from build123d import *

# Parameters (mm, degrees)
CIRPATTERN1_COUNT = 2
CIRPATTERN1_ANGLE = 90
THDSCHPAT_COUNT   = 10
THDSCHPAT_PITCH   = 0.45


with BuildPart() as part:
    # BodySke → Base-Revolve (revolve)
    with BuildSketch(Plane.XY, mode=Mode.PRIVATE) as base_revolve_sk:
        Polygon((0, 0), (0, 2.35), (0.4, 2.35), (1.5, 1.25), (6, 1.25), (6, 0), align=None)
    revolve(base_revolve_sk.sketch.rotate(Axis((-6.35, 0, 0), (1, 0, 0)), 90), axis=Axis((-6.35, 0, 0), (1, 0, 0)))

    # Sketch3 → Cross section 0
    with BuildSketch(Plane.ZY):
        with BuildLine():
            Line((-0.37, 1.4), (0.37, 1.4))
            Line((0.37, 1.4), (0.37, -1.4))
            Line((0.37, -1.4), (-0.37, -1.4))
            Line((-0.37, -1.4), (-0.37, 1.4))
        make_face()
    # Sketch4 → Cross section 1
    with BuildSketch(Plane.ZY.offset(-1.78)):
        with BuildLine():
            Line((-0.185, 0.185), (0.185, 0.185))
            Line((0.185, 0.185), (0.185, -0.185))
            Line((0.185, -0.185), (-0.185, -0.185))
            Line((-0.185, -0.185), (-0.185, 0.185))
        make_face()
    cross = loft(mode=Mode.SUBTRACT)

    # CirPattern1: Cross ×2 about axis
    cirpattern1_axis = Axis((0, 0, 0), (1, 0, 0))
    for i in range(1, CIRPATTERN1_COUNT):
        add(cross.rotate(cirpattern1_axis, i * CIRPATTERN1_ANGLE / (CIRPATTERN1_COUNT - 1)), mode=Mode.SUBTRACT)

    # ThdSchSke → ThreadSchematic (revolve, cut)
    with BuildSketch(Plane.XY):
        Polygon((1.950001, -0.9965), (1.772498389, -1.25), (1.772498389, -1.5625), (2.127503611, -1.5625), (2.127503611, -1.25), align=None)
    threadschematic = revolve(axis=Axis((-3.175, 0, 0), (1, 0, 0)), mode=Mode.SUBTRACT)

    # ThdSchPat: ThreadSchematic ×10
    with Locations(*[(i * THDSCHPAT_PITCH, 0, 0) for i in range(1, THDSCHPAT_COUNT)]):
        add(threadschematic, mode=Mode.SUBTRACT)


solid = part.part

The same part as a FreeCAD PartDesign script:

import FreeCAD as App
import Part
import Sketcher

V = App.Vector
Q = App.Units.Quantity

doc = App.newDocument("Part")
body = doc.addObject("PartDesign::Body", "Body")

# Sketch on XY plane
sketch1 = doc.addObject("Sketcher::SketchObject", "Sketch")
body.addObject(sketch1)
sketch1.AttachmentSupport = (doc.XY_Plane, [""])
sketch1.MapMode = "FlatFace"
sketch1.addGeometry([
    Part.LineSegment(V(0, 2.35, 0), V(0, 0, 0)),  # 0
    Part.LineSegment(V(0, 0, 0), V(6, 0, 0)),  # 1
    Part.LineSegment(V(6, 0, 0), V(6, 1.25, 0)),  # 2
    Part.LineSegment(V(6, 1.25, 0), V(1.5, 1.25, 0)),  # 3
    Part.LineSegment(V(1.5, 1.25, 0), V(0.4, 2.35, 0)),  # 4
    Part.LineSegment(V(0.4, 2.35, 0), V(0, 2.35, 0)),  # 5
], False)
sketch1.addConstraint([
    Sketcher.Constraint("Coincident", 0, 2, 1, 1),
    Sketcher.Constraint("Coincident", 1, 2, 2, 1),
    Sketcher.Constraint("Coincident", 2, 2, 3, 1),
    Sketcher.Constraint("Coincident", 3, 2, 4, 1),
    Sketcher.Constraint("Coincident", 4, 2, 5, 1),
    Sketcher.Constraint("Coincident", 5, 2, 0, 1),
    Sketcher.Constraint("Vertical", 0),
    Sketcher.Constraint("Horizontal", 1),
    Sketcher.Constraint("Vertical", 2),
    Sketcher.Constraint("Horizontal", 3),
    Sketcher.Constraint("Horizontal", 5),
    Sketcher.Constraint("Coincident", 0, 2, -1, 1),
    Sketcher.Constraint("DistanceX", 1, 1, 1, 2, Q("6 mm")),
    Sketcher.Constraint("Angle", 4, Q("135 deg")),
    Sketcher.Constraint("DistanceX", 3, 2, 3, 1, Q("4.5 mm")),
    Sketcher.Constraint("DistanceX", 5, 2, 5, 1, Q("0.4 mm")),
    Sketcher.Constraint("DistanceY", 0, 2, 0, 1, Q("2.35 mm")),
])
revolution = doc.addObject("PartDesign::Revolution", "Revolution")
body.addObject(revolution)
revolution.Profile = sketch1
revolution.ReferenceAxis = (sketch1, ["H_Axis"])
revolution.Angle = 360

# Sketch on YZ plane
sketch2 = doc.addObject("Sketcher::SketchObject", "Sketch001")
body.addObject(sketch2)
sketch2.AttachmentSupport = (doc.YZ_Plane, [""])
sketch2.MapMode = "FlatFace"
sketch2.addGeometry([
    Part.LineSegment(V(1.4, 0.4, 0), V(1.4, -0.4, 0)),
    Part.LineSegment(V(1.4, -0.4, 0), V(-1.4, -0.4, 0)),
    Part.LineSegment(V(-1.4, -0.4, 0), V(-1.4, 0.4, 0)),
    Part.LineSegment(V(-1.4, 0.4, 0), V(1.4, 0.4, 0)),
], False)
sketch2.addConstraint([
    Sketcher.Constraint("Coincident", 0, 2, 1, 1),
    Sketcher.Constraint("Coincident", 1, 2, 2, 1),
    Sketcher.Constraint("Coincident", 2, 2, 3, 1),
    Sketcher.Constraint("Coincident", 3, 2, 0, 1),
    Sketcher.Constraint("Vertical", 0),
    Sketcher.Constraint("Horizontal", 1),
    Sketcher.Constraint("Vertical", 2),
    Sketcher.Constraint("Horizontal", 3),
    Sketcher.Constraint("Symmetric", 0, 2, 2, 2, -1, 1),
    Sketcher.Constraint("DistanceX", 1, 2, 1, 1, Q("2.8 mm")),
    Sketcher.Constraint("DistanceY", 0, 2, 0, 1, Q("0.74 mm")),
])

# Sketch on YZ plane
sketch3 = doc.addObject("Sketcher::SketchObject", "Sketch002")
body.addObject(sketch3)
sketch3.AttachmentSupport = (doc.YZ_Plane, [""])
sketch3.MapMode = "FlatFace"
sketch3.AttachmentOffset = App.Placement(V(0, 0, 1.78), App.Rotation())
sketch3.addGeometry([
    Part.LineSegment(V(0.18, 0.18, 0), V(0.18, -0.18, 0)),
    Part.LineSegment(V(0.18, -0.18, 0), V(-0.18, -0.18, 0)),
    Part.LineSegment(V(-0.18, -0.18, 0), V(-0.18, 0.18, 0)),
    Part.LineSegment(V(-0.18, 0.18, 0), V(0.18, 0.18, 0)),
], False)
sketch3.addConstraint([
    Sketcher.Constraint("Coincident", 0, 2, 1, 1),
    Sketcher.Constraint("Coincident", 1, 2, 2, 1),
    Sketcher.Constraint("Coincident", 2, 2, 3, 1),
    Sketcher.Constraint("Coincident", 3, 2, 0, 1),
    Sketcher.Constraint("Vertical", 0),
    Sketcher.Constraint("Horizontal", 1),
    Sketcher.Constraint("Vertical", 2),
    Sketcher.Constraint("Horizontal", 3),
    Sketcher.Constraint("Symmetric", 0, 2, 2, 2, -1, 1),
    Sketcher.Constraint("Equal", 3, 0),
    Sketcher.Constraint("DistanceX", 1, 2, 1, 1, Q("0.37 mm")),
])

subtractiveloft = doc.addObject("PartDesign::SubtractiveLoft", "SubtractiveLoft")
body.addObject(subtractiveloft)
subtractiveloft.Profile = sketch2
subtractiveloft.Sections = [sketch3]
doc.recompute()

polarpattern = doc.addObject("PartDesign::PolarPattern", "PolarPattern")
body.addObject(polarpattern)
polarpattern.Originals = [subtractiveloft]
polarpattern.Axis = (doc.X_Axis, [""])
polarpattern.Angle = 90
polarpattern.Occurrences = 2
body.Tip = polarpattern

# Sketch on XY plane
sketch4 = doc.addObject("Sketcher::SketchObject", "Sketch003")
body.addObject(sketch4)
sketch4.AttachmentSupport = (doc.XY_Plane, [""])
sketch4.MapMode = "FlatFace"
sketch4.addGeometry([
    Part.LineSegment(V(1.95, -1, 0), V(1.77, -1.25, 0)),  # 0
    Part.LineSegment(V(1.77, -1.25, 0), V(1.77, -1.56, 0)),  # 1
    Part.LineSegment(V(1.77, -1.56, 0), V(2.13, -1.56, 0)),  # 2
    Part.LineSegment(V(2.13, -1.56, 0), V(2.13, -1.25, 0)),  # 3
    Part.LineSegment(V(2.13, -1.25, 0), V(1.95, -1, 0)),  # 4
], False)
sketch4.addConstraint([
    Sketcher.Constraint("Coincident", 0, 2, 1, 1),
    Sketcher.Constraint("Coincident", 1, 2, 2, 1),
    Sketcher.Constraint("Coincident", 2, 2, 3, 1),
    Sketcher.Constraint("Coincident", 3, 2, 4, 1),
    Sketcher.Constraint("Coincident", 4, 2, 0, 1),
    Sketcher.Constraint("Vertical", 1),
    Sketcher.Constraint("Horizontal", 2),
    Sketcher.Constraint("Vertical", 3),
    Sketcher.Constraint("Horizontal", 0, 2, 3, 2),
    Sketcher.Constraint("Equal", 0, 4),
    Sketcher.Constraint("Angle", 0, Q("-125 deg")),
    Sketcher.Constraint("DistanceY", 0, 2, -1, 1, Q("1.25 mm")),
    Sketcher.Constraint("DistanceX", -1, 1, 4, 2, Q("1.950001 mm")),
    Sketcher.Constraint("DistanceY", 1, 2, 1, 1, Q("0.3125 mm")),
    Sketcher.Constraint("DistanceY", 2, 2, 4, 2, Q("0.566 mm")),
])
groove = doc.addObject("PartDesign::Groove", "Groove")
body.addObject(groove)
groove.Profile = sketch4
groove.ReferenceAxis = (sketch4, ["H_Axis"])
groove.Angle = 360
doc.recompute()

linearpattern = doc.addObject("PartDesign::LinearPattern", "LinearPattern")
body.addObject(linearpattern)
linearpattern.Originals = [groove]
linearpattern.Direction = (doc.X_Axis, [""])
linearpattern.Mode = "offset"
linearpattern.Offset = 0.45
linearpattern.Occurrences = 10
body.Tip = linearpattern

doc.recompute()
